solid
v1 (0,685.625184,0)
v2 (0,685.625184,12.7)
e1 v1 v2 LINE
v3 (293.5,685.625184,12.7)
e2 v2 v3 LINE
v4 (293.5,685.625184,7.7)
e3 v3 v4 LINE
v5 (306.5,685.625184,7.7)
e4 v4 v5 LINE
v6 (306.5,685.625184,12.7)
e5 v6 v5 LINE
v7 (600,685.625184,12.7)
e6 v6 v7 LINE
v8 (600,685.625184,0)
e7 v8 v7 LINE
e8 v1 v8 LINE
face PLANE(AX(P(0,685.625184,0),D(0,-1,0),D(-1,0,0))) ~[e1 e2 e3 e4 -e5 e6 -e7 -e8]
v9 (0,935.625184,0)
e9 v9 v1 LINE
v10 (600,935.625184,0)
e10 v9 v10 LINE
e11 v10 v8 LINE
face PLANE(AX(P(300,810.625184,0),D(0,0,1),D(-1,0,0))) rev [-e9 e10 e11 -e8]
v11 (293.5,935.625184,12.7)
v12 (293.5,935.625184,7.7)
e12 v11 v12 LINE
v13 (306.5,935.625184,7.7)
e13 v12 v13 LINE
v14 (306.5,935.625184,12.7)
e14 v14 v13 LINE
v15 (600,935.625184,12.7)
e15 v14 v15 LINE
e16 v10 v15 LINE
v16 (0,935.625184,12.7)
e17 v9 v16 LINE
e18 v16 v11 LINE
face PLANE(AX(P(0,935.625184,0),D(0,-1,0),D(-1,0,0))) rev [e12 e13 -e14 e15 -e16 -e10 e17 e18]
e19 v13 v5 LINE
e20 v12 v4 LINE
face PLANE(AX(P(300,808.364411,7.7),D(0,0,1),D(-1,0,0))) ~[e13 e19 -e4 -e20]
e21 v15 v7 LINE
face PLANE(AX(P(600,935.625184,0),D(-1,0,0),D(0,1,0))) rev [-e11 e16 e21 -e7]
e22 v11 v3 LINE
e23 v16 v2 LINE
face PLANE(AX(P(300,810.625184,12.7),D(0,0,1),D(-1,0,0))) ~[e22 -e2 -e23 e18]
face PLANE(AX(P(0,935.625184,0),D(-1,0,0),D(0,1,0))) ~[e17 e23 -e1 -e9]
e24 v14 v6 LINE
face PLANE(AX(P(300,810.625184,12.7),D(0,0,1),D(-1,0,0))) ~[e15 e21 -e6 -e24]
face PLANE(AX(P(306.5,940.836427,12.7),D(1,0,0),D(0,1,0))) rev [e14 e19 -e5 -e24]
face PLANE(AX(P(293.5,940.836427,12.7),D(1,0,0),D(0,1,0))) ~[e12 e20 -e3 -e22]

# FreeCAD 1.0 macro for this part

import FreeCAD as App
import Part
import Sketcher

V = App.Vector
Q = App.Units.Quantity

doc = App.newDocument("Part")
body = doc.addObject("PartDesign::Body", "Body")

# Sketch on XY plane
sketch1 = body.newObject("Sketcher::SketchObject", "Sketch")
sketch1.AttachmentSupport = (doc.getObject("XY_Plane"), [""])
sketch1.MapMode = "FlatFace"
sketch1.addGeometry([
    Part.LineSegment(V(0, 666, 0), V(0, 416, 0)),
    Part.LineSegment(V(0, 416, 0), V(600, 416, 0)),
    Part.LineSegment(V(600, 416, 0), V(600, 666, 0)),
    Part.LineSegment(V(600, 666, 0), V(0, 666, 0)),
], False)
sketch1.addConstraint([
    Sketcher.Constraint("Coincident", 0, 2, 1, 1),
    Sketcher.Constraint("Coincident", 1, 2, 2, 1),
    Sketcher.Constraint("Coincident", 2, 2, 3, 1),
    Sketcher.Constraint("Coincident", 3, 2, 0, 1),
    Sketcher.Constraint("Vertical", 0),
    Sketcher.Constraint("Horizontal", 1),
    Sketcher.Constraint("Vertical", 2),
    Sketcher.Constraint("Horizontal", 3),
    Sketcher.Constraint("PointOnObject", 0, 2, -2),
    Sketcher.Constraint("DistanceX", 1, 1, 1, 2, Q("600 mm")),
    Sketcher.Constraint("DistanceY", 0, 2, 0, 1, Q("250 mm")),
    Sketcher.Constraint("DistanceY", -1, 1, 0, 2, Q("416.24469 mm")),
])
pad1 = body.newObject("PartDesign::Pad", "Pad")
pad1.Profile = sketch1
pad1.Length = 12.7

# Sketch on XY plane
sketch2 = body.newObject("Sketcher::SketchObject", "Sketch001")
sketch2.AttachmentSupport = (doc.getObject("XY_Plane"), [""])
sketch2.MapMode = "FlatFace"
sketch2.AttachmentOffset = App.Placement(V(0, 0, 12.7), App.Rotation())
sketch2.addGeometry([
    Part.LineSegment(V(294, 676, 0), V(294, 411, 0)),
    Part.LineSegment(V(294, 411, 0), V(306, 411, 0)),
    Part.LineSegment(V(306, 411, 0), V(306, 676, 0)),
    Part.LineSegment(V(306, 676, 0), V(294, 676, 0)),
], False)
sketch2.addConstraint([
    Sketcher.Constraint("Coincident", 0, 2, 1, 1),
    Sketcher.Constraint("Coincident", 1, 2, 2, 1),
    Sketcher.Constraint("Coincident", 2, 2, 3, 1),
    Sketcher.Constraint("Coincident", 3, 2, 0, 1),
    Sketcher.Constraint("Vertical", 0),
    Sketcher.Constraint("Horizontal", 1),
    Sketcher.Constraint("Vertical", 2),
    Sketcher.Constraint("Horizontal", 3),
    Sketcher.Constraint("DistanceX", 1, 1, 1, 2, Q("13 mm")),
    Sketcher.Constraint("DistanceX", -1, 1, 0, 2, Q("293.5 mm")),
    Sketcher.Constraint("DistanceY", 0, 2, 0, 1, Q("264.944031 mm")),
    Sketcher.Constraint("DistanceY", -1, 1, 2, 2, Q("675.977478 mm")),
])
pocket1 = body.newObject("PartDesign::Pocket", "Pocket")
pocket1.Profile = sketch2
pocket1.Length = 5
body2 = doc.addObject("PartDesign::Body", "Body001")
doc.recompute()

mirroring = doc.addObject("Part::Mirroring", "Mirroring")
mirroring.Source = body
mirroring.Base = V(-4.230286, 675.934937, 0)
mirroring.Normal = V(0, -1, 0)
body2.BaseFeature = mirroring
doc.recompute()
body.Visibility = False
mirroring.Visibility = False

doc.recompute()
